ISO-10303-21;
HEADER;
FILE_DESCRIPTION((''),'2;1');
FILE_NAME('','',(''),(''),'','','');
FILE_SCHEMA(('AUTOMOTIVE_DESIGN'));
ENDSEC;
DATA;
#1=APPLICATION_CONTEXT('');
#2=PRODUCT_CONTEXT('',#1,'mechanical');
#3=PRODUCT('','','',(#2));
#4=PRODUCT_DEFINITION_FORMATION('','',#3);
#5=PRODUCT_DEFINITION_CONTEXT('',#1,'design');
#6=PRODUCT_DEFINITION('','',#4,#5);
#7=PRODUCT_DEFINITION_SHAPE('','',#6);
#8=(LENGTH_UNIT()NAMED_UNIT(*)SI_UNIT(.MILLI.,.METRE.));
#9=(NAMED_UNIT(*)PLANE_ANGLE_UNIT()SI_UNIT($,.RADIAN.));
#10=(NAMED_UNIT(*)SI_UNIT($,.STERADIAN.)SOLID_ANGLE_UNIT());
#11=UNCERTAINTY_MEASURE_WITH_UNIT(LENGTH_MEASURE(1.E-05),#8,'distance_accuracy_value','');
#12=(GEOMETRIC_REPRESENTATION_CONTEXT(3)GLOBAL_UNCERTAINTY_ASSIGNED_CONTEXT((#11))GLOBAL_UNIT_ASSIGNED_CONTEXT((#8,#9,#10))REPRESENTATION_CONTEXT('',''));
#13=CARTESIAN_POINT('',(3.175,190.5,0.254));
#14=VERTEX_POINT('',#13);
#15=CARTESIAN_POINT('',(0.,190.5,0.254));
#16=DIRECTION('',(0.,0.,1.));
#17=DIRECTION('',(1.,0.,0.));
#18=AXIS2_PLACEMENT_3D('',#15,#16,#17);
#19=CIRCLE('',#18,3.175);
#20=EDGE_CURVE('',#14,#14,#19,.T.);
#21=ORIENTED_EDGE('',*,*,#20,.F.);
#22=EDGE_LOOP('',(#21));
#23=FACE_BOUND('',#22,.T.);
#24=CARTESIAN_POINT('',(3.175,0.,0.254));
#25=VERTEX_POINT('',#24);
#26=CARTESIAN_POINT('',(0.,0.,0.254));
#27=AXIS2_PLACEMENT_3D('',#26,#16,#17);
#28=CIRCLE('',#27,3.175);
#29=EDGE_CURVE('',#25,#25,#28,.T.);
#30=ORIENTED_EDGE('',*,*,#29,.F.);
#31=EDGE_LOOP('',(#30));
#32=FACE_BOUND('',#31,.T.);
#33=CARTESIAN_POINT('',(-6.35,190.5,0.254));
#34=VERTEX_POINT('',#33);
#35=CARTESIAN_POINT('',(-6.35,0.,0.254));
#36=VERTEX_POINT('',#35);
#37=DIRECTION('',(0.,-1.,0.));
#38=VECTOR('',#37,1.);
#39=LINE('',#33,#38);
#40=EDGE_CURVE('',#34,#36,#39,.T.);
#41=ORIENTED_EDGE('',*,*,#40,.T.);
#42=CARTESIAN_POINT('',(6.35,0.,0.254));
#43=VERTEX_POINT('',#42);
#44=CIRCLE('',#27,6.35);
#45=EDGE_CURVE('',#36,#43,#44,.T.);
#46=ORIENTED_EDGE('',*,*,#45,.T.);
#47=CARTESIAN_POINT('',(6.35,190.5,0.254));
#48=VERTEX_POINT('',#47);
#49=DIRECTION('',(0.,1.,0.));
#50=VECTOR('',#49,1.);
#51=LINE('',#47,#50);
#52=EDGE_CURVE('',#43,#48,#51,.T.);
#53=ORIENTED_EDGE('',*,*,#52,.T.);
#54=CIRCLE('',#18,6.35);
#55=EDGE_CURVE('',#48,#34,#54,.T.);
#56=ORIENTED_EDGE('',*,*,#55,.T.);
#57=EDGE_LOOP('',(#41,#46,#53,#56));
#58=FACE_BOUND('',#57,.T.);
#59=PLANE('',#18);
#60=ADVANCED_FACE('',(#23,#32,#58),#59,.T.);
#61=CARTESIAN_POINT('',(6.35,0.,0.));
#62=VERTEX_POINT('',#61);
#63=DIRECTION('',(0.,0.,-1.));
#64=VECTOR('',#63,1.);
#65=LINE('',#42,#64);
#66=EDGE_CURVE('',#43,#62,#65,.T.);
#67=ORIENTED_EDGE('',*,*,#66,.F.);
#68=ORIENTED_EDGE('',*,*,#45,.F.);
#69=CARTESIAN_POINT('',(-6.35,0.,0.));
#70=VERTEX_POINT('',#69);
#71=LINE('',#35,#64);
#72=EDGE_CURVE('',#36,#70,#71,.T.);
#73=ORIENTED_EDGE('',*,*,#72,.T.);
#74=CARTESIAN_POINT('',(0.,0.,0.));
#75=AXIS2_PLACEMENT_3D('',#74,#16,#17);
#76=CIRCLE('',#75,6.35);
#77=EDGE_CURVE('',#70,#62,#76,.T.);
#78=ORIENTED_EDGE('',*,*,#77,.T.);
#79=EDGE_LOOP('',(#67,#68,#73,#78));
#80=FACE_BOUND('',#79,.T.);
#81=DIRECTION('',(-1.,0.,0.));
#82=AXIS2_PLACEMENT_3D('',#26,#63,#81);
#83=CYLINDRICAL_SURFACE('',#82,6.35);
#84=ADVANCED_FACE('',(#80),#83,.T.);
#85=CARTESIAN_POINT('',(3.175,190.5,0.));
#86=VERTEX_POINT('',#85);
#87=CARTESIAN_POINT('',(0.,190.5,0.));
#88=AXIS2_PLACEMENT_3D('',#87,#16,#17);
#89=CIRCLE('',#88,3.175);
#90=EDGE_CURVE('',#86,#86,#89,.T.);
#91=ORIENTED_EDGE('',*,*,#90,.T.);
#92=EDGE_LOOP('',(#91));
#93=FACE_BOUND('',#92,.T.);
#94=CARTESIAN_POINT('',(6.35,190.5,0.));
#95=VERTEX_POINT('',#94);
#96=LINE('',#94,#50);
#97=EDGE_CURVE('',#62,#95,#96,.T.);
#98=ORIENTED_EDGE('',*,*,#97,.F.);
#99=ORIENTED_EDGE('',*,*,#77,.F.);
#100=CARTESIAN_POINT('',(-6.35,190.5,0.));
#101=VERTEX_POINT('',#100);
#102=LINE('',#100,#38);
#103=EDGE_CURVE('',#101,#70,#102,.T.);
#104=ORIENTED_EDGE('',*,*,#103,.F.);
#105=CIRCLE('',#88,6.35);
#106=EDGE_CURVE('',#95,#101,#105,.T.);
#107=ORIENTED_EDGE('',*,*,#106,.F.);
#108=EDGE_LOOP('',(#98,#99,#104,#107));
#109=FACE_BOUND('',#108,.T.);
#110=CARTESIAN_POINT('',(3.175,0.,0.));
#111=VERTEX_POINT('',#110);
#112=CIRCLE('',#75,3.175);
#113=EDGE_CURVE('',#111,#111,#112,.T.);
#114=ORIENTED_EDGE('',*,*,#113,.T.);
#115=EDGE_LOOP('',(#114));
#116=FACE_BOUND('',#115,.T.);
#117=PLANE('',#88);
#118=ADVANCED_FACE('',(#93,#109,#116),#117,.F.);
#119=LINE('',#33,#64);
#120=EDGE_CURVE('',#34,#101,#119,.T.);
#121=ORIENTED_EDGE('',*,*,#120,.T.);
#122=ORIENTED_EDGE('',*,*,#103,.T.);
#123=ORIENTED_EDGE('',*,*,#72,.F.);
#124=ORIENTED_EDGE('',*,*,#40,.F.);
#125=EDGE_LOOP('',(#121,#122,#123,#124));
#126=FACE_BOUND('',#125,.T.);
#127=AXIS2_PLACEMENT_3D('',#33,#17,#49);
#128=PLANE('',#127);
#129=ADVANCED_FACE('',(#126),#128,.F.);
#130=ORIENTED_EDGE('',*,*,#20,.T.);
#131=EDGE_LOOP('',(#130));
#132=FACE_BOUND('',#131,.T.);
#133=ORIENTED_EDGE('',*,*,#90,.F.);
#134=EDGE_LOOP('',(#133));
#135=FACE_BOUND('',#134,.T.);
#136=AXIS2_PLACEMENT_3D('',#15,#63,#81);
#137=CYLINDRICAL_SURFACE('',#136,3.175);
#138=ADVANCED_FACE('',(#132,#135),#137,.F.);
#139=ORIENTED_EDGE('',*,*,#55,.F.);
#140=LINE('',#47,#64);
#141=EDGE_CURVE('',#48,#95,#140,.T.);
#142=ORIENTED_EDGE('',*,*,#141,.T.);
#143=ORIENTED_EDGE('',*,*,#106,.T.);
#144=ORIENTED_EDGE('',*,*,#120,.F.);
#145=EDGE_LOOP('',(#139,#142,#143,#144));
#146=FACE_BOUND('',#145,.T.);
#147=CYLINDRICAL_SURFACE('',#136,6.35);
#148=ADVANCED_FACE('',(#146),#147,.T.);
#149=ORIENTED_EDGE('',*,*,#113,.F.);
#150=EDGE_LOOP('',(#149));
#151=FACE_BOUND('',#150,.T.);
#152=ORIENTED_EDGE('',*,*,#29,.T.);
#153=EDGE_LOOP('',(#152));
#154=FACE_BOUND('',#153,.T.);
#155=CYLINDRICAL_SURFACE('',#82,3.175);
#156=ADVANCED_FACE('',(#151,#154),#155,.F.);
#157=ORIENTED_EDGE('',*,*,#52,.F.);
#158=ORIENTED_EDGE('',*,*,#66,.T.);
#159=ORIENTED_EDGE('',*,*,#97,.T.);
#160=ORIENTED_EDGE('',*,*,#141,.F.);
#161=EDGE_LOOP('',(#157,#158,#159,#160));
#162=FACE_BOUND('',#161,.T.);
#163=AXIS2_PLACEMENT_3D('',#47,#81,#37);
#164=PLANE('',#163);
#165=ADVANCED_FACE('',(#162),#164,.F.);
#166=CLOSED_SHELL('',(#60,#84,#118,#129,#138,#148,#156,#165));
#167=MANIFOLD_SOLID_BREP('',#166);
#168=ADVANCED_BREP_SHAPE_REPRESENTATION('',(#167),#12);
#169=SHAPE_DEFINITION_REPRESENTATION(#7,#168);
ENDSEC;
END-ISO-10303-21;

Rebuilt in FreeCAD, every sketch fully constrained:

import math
import FreeCAD as App
import Part
import Sketcher
Q = App.Units.Quantity

doc = App.newDocument("Part")
body = doc.addObject("PartDesign::Body", "Body")

# Sketch on XY plane
sketch1 = doc.addObject("Sketcher::SketchObject", "Sketch")
body.addObject(sketch1)
sketch1.AttachmentSupport = (doc.XY_Plane, [""])
sketch1.MapMode = "FlatFace"
sketch1.addGeometry([
    Part.LineSegment(App.Vector(6.35, 0, 0), App.Vector(6.35, 190.5, 0)),  # 0
    Part.ArcOfCircle(Part.Circle(App.Vector(0, 190.5, 0), App.Vector(0, 0, 1), 6.35), math.radians(0), math.radians(180)),  # 1
    Part.LineSegment(App.Vector(-6.35, 190.5, 0), App.Vector(-6.35, 0, 0)),  # 2
    Part.ArcOfCircle(Part.Circle(App.Vector(0, 0, 0), App.Vector(0, 0, 1), 6.35), math.radians(180), math.radians(360)),  # 3
    Part.Circle(App.Vector(0, 0, 0), App.Vector(0, 0, 1), 3.175),  # 4
    Part.Circle(App.Vector(0, 190.5, 0), App.Vector(0, 0, 1), 3.175),  # 5
], False)
sketch1.addConstraint([
    Sketcher.Constraint("Tangent", 0, 2, 1, 1),
    Sketcher.Constraint("Tangent", 1, 2, 2, 1),
    Sketcher.Constraint("Tangent", 2, 2, 3, 1),
    Sketcher.Constraint("Tangent", 3, 2, 0, 1),
    Sketcher.Constraint("Vertical", 0),
    Sketcher.Constraint("Vertical", 2),
    Sketcher.Constraint("Coincident", 3, 3, -1, 1),
    Sketcher.Constraint("Coincident", 4, 3, -1, 1),
    Sketcher.Constraint("Coincident", 5, 3, 1, 3),
    Sketcher.Constraint("Equal", 4, 5),
    Sketcher.Constraint("Diameter", 4, Q("0.25 in")),
    Sketcher.Constraint("Radius", 1, Q("0.25 in")),
    Sketcher.Constraint("DistanceY", 0, 1, 0, 2, Q("7.5 in")),
])
pad1 = doc.addObject("PartDesign::Pad", "Pad")
body.addObject(pad1)
pad1.Profile = sketch1
pad1.Length = Q("0.01 in")

doc.recompute()
